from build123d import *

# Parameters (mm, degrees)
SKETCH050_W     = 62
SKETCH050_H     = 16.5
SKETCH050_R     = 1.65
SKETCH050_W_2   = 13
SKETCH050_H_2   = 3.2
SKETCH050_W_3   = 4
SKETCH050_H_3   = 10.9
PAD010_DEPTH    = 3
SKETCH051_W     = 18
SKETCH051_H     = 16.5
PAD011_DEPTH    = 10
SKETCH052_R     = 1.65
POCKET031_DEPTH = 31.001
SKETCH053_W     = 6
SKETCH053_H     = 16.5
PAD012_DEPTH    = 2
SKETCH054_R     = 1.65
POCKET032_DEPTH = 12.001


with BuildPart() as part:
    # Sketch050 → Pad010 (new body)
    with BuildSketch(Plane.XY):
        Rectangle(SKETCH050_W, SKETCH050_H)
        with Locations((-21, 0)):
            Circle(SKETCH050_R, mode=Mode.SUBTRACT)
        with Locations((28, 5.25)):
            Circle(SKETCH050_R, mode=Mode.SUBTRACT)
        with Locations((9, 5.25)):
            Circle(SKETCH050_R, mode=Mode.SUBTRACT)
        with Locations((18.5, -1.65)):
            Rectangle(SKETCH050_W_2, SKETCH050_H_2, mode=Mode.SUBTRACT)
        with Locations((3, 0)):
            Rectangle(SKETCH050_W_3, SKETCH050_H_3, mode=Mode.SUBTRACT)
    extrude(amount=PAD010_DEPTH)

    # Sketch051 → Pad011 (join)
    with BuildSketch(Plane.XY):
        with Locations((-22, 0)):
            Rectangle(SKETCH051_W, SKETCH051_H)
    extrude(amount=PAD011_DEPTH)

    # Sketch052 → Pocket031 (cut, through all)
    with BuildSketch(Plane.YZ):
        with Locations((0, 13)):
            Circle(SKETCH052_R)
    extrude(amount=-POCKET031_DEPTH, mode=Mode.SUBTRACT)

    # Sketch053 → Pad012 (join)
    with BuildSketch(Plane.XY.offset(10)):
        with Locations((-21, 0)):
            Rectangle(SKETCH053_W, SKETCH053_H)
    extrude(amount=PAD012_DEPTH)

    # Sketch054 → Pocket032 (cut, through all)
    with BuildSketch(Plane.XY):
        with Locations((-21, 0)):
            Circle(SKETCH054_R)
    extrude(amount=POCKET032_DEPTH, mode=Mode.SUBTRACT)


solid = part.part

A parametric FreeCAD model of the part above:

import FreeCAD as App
import Part
import Sketcher

V = App.Vector
Q = App.Units.Quantity

doc = App.newDocument("Part")
body = doc.addObject("PartDesign::Body", "Body")

# Sketch on XY plane
sketch1 = doc.addObject("Sketcher::SketchObject", "Sketch")
body.addObject(sketch1)
sketch1.AttachmentSupport = (doc.XY_Plane, [""])
sketch1.MapMode = "FlatFace"
sketch1.addGeometry(Part.LineSegment(V(-31, 8.2, 0), V(-31, -8.2, 0)), False)
sketch1.addGeometry(Part.LineSegment(V(-31, -8.2, 0), V(31, -8.2, 0)), False)
sketch1.addGeometry(Part.LineSegment(V(31, -8.2, 0), V(31, 8.2, 0)), False)
sketch1.addGeometry(Part.LineSegment(V(31, 8.2, 0), V(-31, 8.2, 0)), False)
sketch1.addGeometry(Part.Circle(V(-21, 0, 0), V(0, 0, 1), 1.6), False)
sketch1.addGeometry(Part.LineSegment(V(5, -5.5, 0), V(1, -5.5, 0)), False)
sketch1.addGeometry(Part.LineSegment(V(1, -5.5, 0), V(1, 5.5, 0)), False)
sketch1.addGeometry(Part.LineSegment(V(1, 5.5, 0), V(5, 5.5, 0)), False)
sketch1.addGeometry(Part.LineSegment(V(5, 5.5, 0), V(5, -5.5, 0)), False)
sketch1.addGeometry(Part.LineSegment(V(25, -3.2, 0), V(12, -3.2, 0)), False)
sketch1.addGeometry(Part.LineSegment(V(12, -3.2, 0), V(12, -0.1, 0)), False)
sketch1.addGeometry(Part.LineSegment(V(12, -0.1, 0), V(25, -0.1, 0)), False)
sketch1.addGeometry(Part.LineSegment(V(25, -0.1, 0), V(25, -3.2, 0)), False)
sketch1.addGeometry(Part.Circle(V(9, 5.2, 0), V(0, 0, 1), 1.6), False)
sketch1.addGeometry(Part.Circle(V(28, 5.2, 0), V(0, 0, 1), 1.6), False)
sketch1.addConstraint(Sketcher.Constraint("Coincident", 0, 2, 1, 1))
sketch1.addConstraint(Sketcher.Constraint("Coincident", 1, 2, 2, 1))
sketch1.addConstraint(Sketcher.Constraint("Coincident", 2, 2, 3, 1))
sketch1.addConstraint(Sketcher.Constraint("Coincident", 3, 2, 0, 1))
sketch1.addConstraint(Sketcher.Constraint("Coincident", 5, 2, 6, 1))
sketch1.addConstraint(Sketcher.Constraint("Coincident", 6, 2, 7, 1))
sketch1.addConstraint(Sketcher.Constraint("Coincident", 7, 2, 8, 1))
sketch1.addConstraint(Sketcher.Constraint("Coincident", 8, 2, 5, 1))
sketch1.addConstraint(Sketcher.Constraint("Coincident", 9, 2, 10, 1))
sketch1.addConstraint(Sketcher.Constraint("Coincident", 10, 2, 11, 1))
sketch1.addConstraint(Sketcher.Constraint("Coincident", 11, 2, 12, 1))
sketch1.addConstraint(Sketcher.Constraint("Coincident", 12, 2, 9, 1))
sketch1.addConstraint(Sketcher.Constraint("Vertical", 0))
sketch1.addConstraint(Sketcher.Constraint("Horizontal", 1))
sketch1.addConstraint(Sketcher.Constraint("Vertical", 2))
sketch1.addConstraint(Sketcher.Constraint("Horizontal", 3))
sketch1.addConstraint(Sketcher.Constraint("Horizontal", 5))
sketch1.addConstraint(Sketcher.Constraint("Vertical", 6))
sketch1.addConstraint(Sketcher.Constraint("Horizontal", 7))
sketch1.addConstraint(Sketcher.Constraint("Vertical", 8))
sketch1.addConstraint(Sketcher.Constraint("Horizontal", 9))
sketch1.addConstraint(Sketcher.Constraint("Vertical", 10))
sketch1.addConstraint(Sketcher.Constraint("Horizontal", 11))
sketch1.addConstraint(Sketcher.Constraint("Vertical", 12))
sketch1.addConstraint(Sketcher.Constraint("Equal", 4, 13))
sketch1.addConstraint(Sketcher.Constraint("Equal", 13, 14))
sketch1.addConstraint(Sketcher.Constraint("Symmetric", 0, 2, 2, 2, -1, 1))
sketch1.addConstraint(Sketcher.Constraint("PointOnObject", 4, 3, -1))
sketch1.addConstraint(Sketcher.Constraint("Horizontal", 13, 3, 14, 3))
sketch1.addConstraint(Sketcher.Constraint("Diameter", 4, Q("3.3 mm")))
sketch1.addConstraint(Sketcher.Constraint("DistanceX", 1, 1, 1, 2, Q("62 mm")))
sketch1.addConstraint(Sketcher.Constraint("DistanceX", 5, 2, 5, 1, Q("4 mm")))
sketch1.addConstraint(Sketcher.Constraint("DistanceX", 9, 2, 9, 1, Q("13 mm")))
sketch1.addConstraint(Sketcher.Constraint("DistanceY", 0, 2, 0, 1, Q("16.5 mm")))
sketch1.addConstraint(Sketcher.Constraint("DistanceY", 6, 1, 6, 2, Q("10.9 mm")))
sketch1.addConstraint(Sketcher.Constraint("DistanceY", 10, 1, 10, 2, Q("3.2 mm")))
sketch1.addConstraint(Sketcher.Constraint("DistanceX", 4, 3, -1, 1, Q("21 mm")))
sketch1.addConstraint(Sketcher.Constraint("DistanceX", -1, 1, 13, 3, Q("9 mm")))
sketch1.addConstraint(Sketcher.Constraint("DistanceX", -1, 1, 14, 3, Q("28 mm")))
sketch1.addConstraint(Sketcher.Constraint("DistanceX", -1, 1, 5, 2, Q("1 mm")))
sketch1.addConstraint(Sketcher.Constraint("DistanceX", -1, 1, 9, 2, Q("12 mm")))
sketch1.addConstraint(Sketcher.Constraint("DistanceY", 14, 3, 2, 2, Q("3 mm")))
sketch1.addConstraint(Sketcher.Constraint("DistanceY", 1, 2, 12, 2, Q("5 mm")))
sketch1.addConstraint(Sketcher.Constraint("DistanceY", 5, 2, 13, 3, Q("10.7 mm")))
pad1 = doc.addObject("PartDesign::Pad", "Pad")
body.addObject(pad1)
pad1.Profile = sketch1
pad1.Length = 3

# Sketch on XY plane
sketch2 = doc.addObject("Sketcher::SketchObject", "Sketch001")
body.addObject(sketch2)
sketch2.AttachmentSupport = (doc.XY_Plane, [""])
sketch2.MapMode = "FlatFace"
sketch2.addGeometry(Part.LineSegment(V(-31, 8, 0), V(-31, -8, 0)), False)
sketch2.addGeometry(Part.LineSegment(V(-31, -8, 0), V(-13, -8, 0)), False)
sketch2.addGeometry(Part.LineSegment(V(-13, -8, 0), V(-13, 8, 0)), False)
sketch2.addGeometry(Part.LineSegment(V(-13, 8, 0), V(-31, 8, 0)), False)
sketch2.addConstraint(Sketcher.Constraint("Coincident", 0, 2, 1, 1))
sketch2.addConstraint(Sketcher.Constraint("Coincident", 1, 2, 2, 1))
sketch2.addConstraint(Sketcher.Constraint("Coincident", 2, 2, 3, 1))
sketch2.addConstraint(Sketcher.Constraint("Coincident", 3, 2, 0, 1))
sketch2.addConstraint(Sketcher.Constraint("Vertical", 0))
sketch2.addConstraint(Sketcher.Constraint("Horizontal", 1))
sketch2.addConstraint(Sketcher.Constraint("Vertical", 2))
sketch2.addConstraint(Sketcher.Constraint("Horizontal", 3))
sketch2.addConstraint(Sketcher.Constraint("DistanceX", 1, 1, 1, 2, Q("18 mm")))
sketch2.addConstraint(Sketcher.Constraint("DistanceY", 0, 2, 0, 1, Q("16.5 mm")))
sketch2.addConstraint(Sketcher.Constraint("DistanceX", 0, 2, -1, 1, Q("31 mm")))
sketch2.addConstraint(Sketcher.Constraint("DistanceY", 0, 2, -1, 1, Q("8.25 mm")))
pad2 = doc.addObject("PartDesign::Pad", "Pad001")
body.addObject(pad2)
pad2.Profile = sketch2
pad2.Length = 10

# Sketch on YZ plane
sketch3 = doc.addObject("Sketcher::SketchObject", "Sketch002")
body.addObject(sketch3)
sketch3.AttachmentSupport = (doc.YZ_Plane, [""])
sketch3.MapMode = "FlatFace"
sketch3.addGeometry(Part.Circle(V(0, 13, 0), V(0, 0, 1), 1.6), False)
sketch3.addConstraint(Sketcher.Constraint("PointOnObject", 0, 3, -2))
sketch3.addConstraint(Sketcher.Constraint("Diameter", 0, Q("3.3 mm")))
sketch3.addConstraint(Sketcher.Constraint("DistanceY", -1, 1, 0, 3, Q("13 mm")))
pocket1 = doc.addObject("PartDesign::Pocket", "Pocket")
body.addObject(pocket1)
pocket1.Profile = sketch3
pocket1.Type = "ThroughAll"

# Sketch on XY plane
sketch4 = doc.addObject("Sketcher::SketchObject", "Sketch003")
body.addObject(sketch4)
sketch4.AttachmentSupport = (doc.XY_Plane, [""])
sketch4.MapMode = "FlatFace"
sketch4.AttachmentOffset = App.Placement(V(0, 0, 10), App.Rotation())
sketch4.addGeometry(Part.LineSegment(V(-24, 8, 0), V(-24, -8, 0)), False)
sketch4.addGeometry(Part.LineSegment(V(-24, -8, 0), V(-18, -8, 0)), False)
sketch4.addGeometry(Part.LineSegment(V(-18, -8, 0), V(-18, 8, 0)), False)
sketch4.addGeometry(Part.LineSegment(V(-18, 8, 0), V(-24, 8, 0)), False)
sketch4.addConstraint(Sketcher.Constraint("Coincident", 0, 2, 1, 1))
sketch4.addConstraint(Sketcher.Constraint("Coincident", 1, 2, 2, 1))
sketch4.addConstraint(Sketcher.Constraint("Coincident", 2, 2, 3, 1))
sketch4.addConstraint(Sketcher.Constraint("Coincident", 3, 2, 0, 1))
sketch4.addConstraint(Sketcher.Constraint("Vertical", 0))
sketch4.addConstraint(Sketcher.Constraint("Horizontal", 1))
sketch4.addConstraint(Sketcher.Constraint("Vertical", 2))
sketch4.addConstraint(Sketcher.Constraint("Horizontal", 3))
sketch4.addConstraint(Sketcher.Constraint("DistanceX", 1, 1, 1, 2, Q("6 mm")))
sketch4.addConstraint(Sketcher.Constraint("DistanceY", 0, 2, 0, 1, Q("16.5 mm")))
sketch4.addConstraint(Sketcher.Constraint("DistanceX", 0, 2, -1, 1, Q("24 mm")))
sketch4.addConstraint(Sketcher.Constraint("DistanceY", 0, 2, -1, 1, Q("8.25 mm")))
pad3 = doc.addObject("PartDesign::Pad", "Pad002")
body.addObject(pad3)
pad3.Profile = sketch4
pad3.Length = 2

# Sketch on XY plane
sketch5 = doc.addObject("Sketcher::SketchObject", "Sketch004")
body.addObject(sketch5)
sketch5.AttachmentSupport = (doc.XY_Plane, [""])
sketch5.MapMode = "FlatFace"
sketch5.addGeometry(Part.Circle(V(-21, 0, 0), V(0, 0, 1), 1.6), False)
sketch5.addConstraint(Sketcher.Constraint("PointOnObject", 0, 3, -1))
sketch5.addConstraint(Sketcher.Constraint("Diameter", 0, Q("3.3 mm")))
sketch5.addConstraint(Sketcher.Constraint("DistanceX", 0, 3, -1, 1, Q("21 mm")))
pocket2 = doc.addObject("PartDesign::Pocket", "Pocket001")
body.addObject(pocket2)
pocket2.Profile = sketch5
pocket2.Type = "ThroughAll"
pocket2.Reversed = True

doc.recompute()
